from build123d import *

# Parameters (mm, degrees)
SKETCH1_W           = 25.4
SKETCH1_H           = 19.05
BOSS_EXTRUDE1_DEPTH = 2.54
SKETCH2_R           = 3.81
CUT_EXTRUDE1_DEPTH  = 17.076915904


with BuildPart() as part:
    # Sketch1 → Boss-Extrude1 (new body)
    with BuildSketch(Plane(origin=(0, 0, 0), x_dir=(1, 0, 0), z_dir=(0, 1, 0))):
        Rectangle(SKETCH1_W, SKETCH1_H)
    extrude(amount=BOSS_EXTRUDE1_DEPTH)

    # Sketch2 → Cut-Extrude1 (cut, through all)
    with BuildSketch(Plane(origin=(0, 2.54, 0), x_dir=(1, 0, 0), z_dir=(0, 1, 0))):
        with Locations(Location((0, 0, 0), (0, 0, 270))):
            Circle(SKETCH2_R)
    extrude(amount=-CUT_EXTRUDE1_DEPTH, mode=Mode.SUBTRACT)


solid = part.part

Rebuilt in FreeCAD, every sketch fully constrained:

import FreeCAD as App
import Part
import Sketcher
Q = App.Units.Quantity

doc = App.newDocument("Part")
params = doc.addObject("Spreadsheet::Sheet", "Params")
for row, (alias, value) in enumerate([
    ("sketch1_width", "1 in"),
    ("sketch1_height", "0.75 in"),
    ("pad1_length", "0.1 in"),
    ("sketch2_diameter", "0.3 in"),
], start=1):
    params.set(f"A{row}", alias)
    params.set(f"B{row}", "=" + value)
    params.setAlias(f"B{row}", alias)

body = doc.addObject("PartDesign::Body", "Body")

# Sketch on XZ plane
sketch1 = body.newObject("Sketcher::SketchObject", "Sketch")
sketch1.AttachmentSupport = (doc.getObject("XZ_Plane"), [""])
sketch1.MapMode = "FlatFace"
sketch1.addGeometry([
    Part.LineSegment(App.Vector(-13, -10, 0), App.Vector(-13, 10, 0)),
    Part.LineSegment(App.Vector(-13, 10, 0), App.Vector(13, 10, 0)),
    Part.LineSegment(App.Vector(13, 10, 0), App.Vector(13, -10, 0)),
    Part.LineSegment(App.Vector(13, -10, 0), App.Vector(-13, -10, 0)),
], False)
sketch1.addConstraint([
    Sketcher.Constraint("Coincident", 0, 2, 1, 1),
    Sketcher.Constraint("Coincident", 1, 2, 2, 1),
    Sketcher.Constraint("Coincident", 2, 2, 3, 1),
    Sketcher.Constraint("Coincident", 3, 2, 0, 1),
    Sketcher.Constraint("Vertical", 0),
    Sketcher.Constraint("Horizontal", 1),
    Sketcher.Constraint("Vertical", 2),
    Sketcher.Constraint("Horizontal", 3),
    Sketcher.Constraint("Symmetric", 0, 2, 2, 2, -1, 1),
    Sketcher.Constraint("DistanceX", 1, 1, 1, 2, Q("1 in")),
    Sketcher.Constraint("DistanceY", 0, 1, 0, 2, Q("0.75 in")),
])
sketch1.setExpression("Constraints[9]", "Params.sketch1_width")
sketch1.setExpression("Constraints[10]", "Params.sketch1_height")
pad1 = body.newObject("PartDesign::Pad", "Pad")
pad1.Profile = sketch1
pad1.setExpression("Length", "Params.pad1_length")
pad1.Reversed = True

# Sketch on XZ plane
sketch2 = body.newObject("Sketcher::SketchObject", "Sketch001")
sketch2.AttachmentSupport = (doc.getObject("XZ_Plane"), [""])
sketch2.MapMode = "FlatFace"
sketch2.AttachmentOffset = App.Placement(App.Vector(0, 0, -0.1 * 25.4), App.Rotation())
sketch2.addGeometry(Part.Circle(App.Vector(0, 0, 0), App.Vector(0, 0, 1), 3.8), False)
sketch2.addConstraint([
    Sketcher.Constraint("Coincident", 0, 3, -1, 1),
    Sketcher.Constraint("Diameter", 0, Q("0.3 in")),
])
sketch2.setExpression("Constraints[1]", "Params.sketch2_diameter")
pocket1 = body.newObject("PartDesign::Pocket", "Pocket")
pocket1.Profile = sketch2
pocket1.Type = "ThroughAll"
pocket1.Reversed = True

doc.recompute()
